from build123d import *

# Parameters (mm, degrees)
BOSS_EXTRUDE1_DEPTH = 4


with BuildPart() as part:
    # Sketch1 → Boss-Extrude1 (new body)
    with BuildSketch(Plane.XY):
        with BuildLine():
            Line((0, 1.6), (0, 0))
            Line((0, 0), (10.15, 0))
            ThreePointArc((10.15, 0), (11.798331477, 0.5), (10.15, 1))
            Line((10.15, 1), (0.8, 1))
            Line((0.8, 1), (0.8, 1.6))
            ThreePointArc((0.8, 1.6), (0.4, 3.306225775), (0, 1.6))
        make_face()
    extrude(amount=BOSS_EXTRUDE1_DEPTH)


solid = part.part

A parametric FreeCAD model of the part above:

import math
import FreeCAD as App
import Part
import Sketcher

V = App.Vector
Q = App.Units.Quantity

doc = App.newDocument("Part")
body = doc.addObject("PartDesign::Body", "Body")

# Sketch on XY plane
sketch1 = doc.addObject("Sketcher::SketchObject", "Sketch")
body.addObject(sketch1)
sketch1.AttachmentSupport = (doc.XY_Plane, [""])
sketch1.MapMode = "FlatFace"
sketch1.addGeometry(Part.LineSegment(V(0, 1.6, 0), V(0, 0, 0)), False)
sketch1.addGeometry(Part.LineSegment(V(0, 0, 0), V(10.2, 0, 0)), False)
sketch1.addGeometry(Part.ArcOfCircle(Part.Circle(V(10.9, 0.5, 0), V(0, 0, 1), 0.9), math.radians(-146), math.radians(146)), False)
sketch1.addGeometry(Part.LineSegment(V(10.2, 1, 0), V(0.8, 1, 0)), False)
sketch1.addGeometry(Part.LineSegment(V(0.8, 1, 0), V(0.8, 1.6, 0)), False)
sketch1.addGeometry(Part.ArcOfCircle(Part.Circle(V(0.4, 2.4, 0), V(0, 0, 1), 0.9), math.radians(-64), math.radians(244)), False)
sketch1.addConstraint(Sketcher.Constraint("Coincident", 0, 2, 1, 1))
sketch1.addConstraint(Sketcher.Constraint("Coincident", 1, 2, 2, 1))
sketch1.addConstraint(Sketcher.Constraint("Coincident", 2, 2, 3, 1))
sketch1.addConstraint(Sketcher.Constraint("Coincident", 3, 2, 4, 1))
sketch1.addConstraint(Sketcher.Constraint("Coincident", 4, 2, 5, 1))
sketch1.addConstraint(Sketcher.Constraint("Coincident", 5, 2, 0, 1))
sketch1.addConstraint(Sketcher.Constraint("Vertical", 0))
sketch1.addConstraint(Sketcher.Constraint("Horizontal", 1))
sketch1.addConstraint(Sketcher.Constraint("Horizontal", 3))
sketch1.addConstraint(Sketcher.Constraint("Vertical", 4))
sketch1.addConstraint(Sketcher.Constraint("Coincident", 0, 2, -1, 1))
sketch1.addConstraint(Sketcher.Constraint("Equal", 2, 5))
sketch1.addConstraint(Sketcher.Constraint("Horizontal", 4, 2, 5, 2))
sketch1.addConstraint(Sketcher.Constraint("Vertical", 1, 2, 2, 2))
sketch1.addConstraint(Sketcher.Constraint("Radius", 2, Q("0.9 mm")))
sketch1.addConstraint(Sketcher.Constraint("DistanceY", 0, 2, 0, 1, Q("1.6 mm")))
sketch1.addConstraint(Sketcher.Constraint("DistanceY", 4, 1, 4, 2, Q("0.6 mm")))
sketch1.addConstraint(Sketcher.Constraint("DistanceX", 1, 1, 1, 2, Q("10.15 mm")))
sketch1.addConstraint(Sketcher.Constraint("DistanceX", 3, 2, 3, 1, Q("9.35 mm")))
pad1 = doc.addObject("PartDesign::Pad", "Pad")
body.addObject(pad1)
pad1.Profile = sketch1
pad1.Length = 4

doc.recompute()
